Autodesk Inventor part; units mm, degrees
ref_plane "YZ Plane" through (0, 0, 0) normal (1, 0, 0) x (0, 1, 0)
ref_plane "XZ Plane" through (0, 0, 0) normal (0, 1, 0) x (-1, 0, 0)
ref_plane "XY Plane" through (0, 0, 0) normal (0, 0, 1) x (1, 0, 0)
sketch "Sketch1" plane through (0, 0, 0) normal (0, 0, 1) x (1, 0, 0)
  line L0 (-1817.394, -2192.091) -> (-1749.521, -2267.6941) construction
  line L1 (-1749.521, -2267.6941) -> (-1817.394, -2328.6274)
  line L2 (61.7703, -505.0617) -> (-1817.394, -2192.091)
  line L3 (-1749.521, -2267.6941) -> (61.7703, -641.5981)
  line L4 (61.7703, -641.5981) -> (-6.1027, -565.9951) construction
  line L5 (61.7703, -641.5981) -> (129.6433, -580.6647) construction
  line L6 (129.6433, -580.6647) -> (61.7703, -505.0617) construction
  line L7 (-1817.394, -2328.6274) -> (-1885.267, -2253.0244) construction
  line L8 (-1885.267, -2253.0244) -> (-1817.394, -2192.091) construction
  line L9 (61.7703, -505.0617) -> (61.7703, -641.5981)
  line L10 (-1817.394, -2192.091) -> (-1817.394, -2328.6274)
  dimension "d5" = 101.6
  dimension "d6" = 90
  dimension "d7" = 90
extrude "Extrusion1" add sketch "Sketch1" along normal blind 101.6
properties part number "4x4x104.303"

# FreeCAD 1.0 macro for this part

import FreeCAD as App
import Part
import Sketcher
from FreeCAD import Vector
Q = App.Units.Quantity

doc = App.newDocument("Part")
body = doc.addObject("PartDesign::Body", "Body")

sketch1 = body.newObject("Sketcher::SketchObject", "Sketch")
sketch1.AttachmentSupport = (doc.getObject("XY_Plane"), [""])
sketch1.MapMode = "FlatFace"
sketch1.addGeometry([
    Part.LineSegment(Vector(-1817.394, -2328.6274, 0), Vector(-1749.521, -2267.6941, 0)),
    Part.LineSegment(Vector(-1749.521, -2267.6941, 0), Vector(61.7703, -641.5981, 0)),
    Part.LineSegment(Vector(61.7703, -641.5981, 0), Vector(61.7703, -505.0617, 0)),
    Part.LineSegment(Vector(61.7703, -505.0617, 0), Vector(-1817.394, -2192.091, 0)),
    Part.LineSegment(Vector(-1817.394, -2192.091, 0), Vector(-1817.394, -2328.6274, 0)),
], False)
sketch1.addConstraint([
    Sketcher.Constraint("Coincident", 0, 2, 1, 1),
    Sketcher.Constraint("Coincident", 1, 2, 2, 1),
    Sketcher.Constraint("Coincident", 2, 2, 3, 1),
    Sketcher.Constraint("Coincident", 3, 2, 4, 1),
    Sketcher.Constraint("Coincident", 4, 2, 0, 1),
    Sketcher.Constraint("Vertical", 2),
    Sketcher.Constraint("Vertical", 4),
    Sketcher.Constraint("Distance", 1, Q("95.8317 in")),
    Sketcher.Constraint("Distance", 3, Q("99.4227 in")),
    Sketcher.Constraint("DistanceY", 2, 1, 2, 2, Q("136.5364 mm")),
    Sketcher.Constraint("DistanceY", 4, 2, 4, 1, Q("136.5364 mm")),
    Sketcher.Constraint("DistanceY", 0, 2, -1, 1, Q("89.2793 in")),
    Sketcher.Constraint("DistanceX", -1, 1, 1, 2, Q("2.4319 in")),
    Sketcher.Constraint("DistanceY", 3, 2, -1, 1, Q("86.3028 in")),
    Sketcher.Constraint("DistanceX", 0, 2, -1, 1, Q("1749.521 mm")),
])
pad1 = body.newObject("PartDesign::Pad", "Pad")
pad1.Profile = sketch1
pad1.Length = Q("4 in")

doc.recompute()
